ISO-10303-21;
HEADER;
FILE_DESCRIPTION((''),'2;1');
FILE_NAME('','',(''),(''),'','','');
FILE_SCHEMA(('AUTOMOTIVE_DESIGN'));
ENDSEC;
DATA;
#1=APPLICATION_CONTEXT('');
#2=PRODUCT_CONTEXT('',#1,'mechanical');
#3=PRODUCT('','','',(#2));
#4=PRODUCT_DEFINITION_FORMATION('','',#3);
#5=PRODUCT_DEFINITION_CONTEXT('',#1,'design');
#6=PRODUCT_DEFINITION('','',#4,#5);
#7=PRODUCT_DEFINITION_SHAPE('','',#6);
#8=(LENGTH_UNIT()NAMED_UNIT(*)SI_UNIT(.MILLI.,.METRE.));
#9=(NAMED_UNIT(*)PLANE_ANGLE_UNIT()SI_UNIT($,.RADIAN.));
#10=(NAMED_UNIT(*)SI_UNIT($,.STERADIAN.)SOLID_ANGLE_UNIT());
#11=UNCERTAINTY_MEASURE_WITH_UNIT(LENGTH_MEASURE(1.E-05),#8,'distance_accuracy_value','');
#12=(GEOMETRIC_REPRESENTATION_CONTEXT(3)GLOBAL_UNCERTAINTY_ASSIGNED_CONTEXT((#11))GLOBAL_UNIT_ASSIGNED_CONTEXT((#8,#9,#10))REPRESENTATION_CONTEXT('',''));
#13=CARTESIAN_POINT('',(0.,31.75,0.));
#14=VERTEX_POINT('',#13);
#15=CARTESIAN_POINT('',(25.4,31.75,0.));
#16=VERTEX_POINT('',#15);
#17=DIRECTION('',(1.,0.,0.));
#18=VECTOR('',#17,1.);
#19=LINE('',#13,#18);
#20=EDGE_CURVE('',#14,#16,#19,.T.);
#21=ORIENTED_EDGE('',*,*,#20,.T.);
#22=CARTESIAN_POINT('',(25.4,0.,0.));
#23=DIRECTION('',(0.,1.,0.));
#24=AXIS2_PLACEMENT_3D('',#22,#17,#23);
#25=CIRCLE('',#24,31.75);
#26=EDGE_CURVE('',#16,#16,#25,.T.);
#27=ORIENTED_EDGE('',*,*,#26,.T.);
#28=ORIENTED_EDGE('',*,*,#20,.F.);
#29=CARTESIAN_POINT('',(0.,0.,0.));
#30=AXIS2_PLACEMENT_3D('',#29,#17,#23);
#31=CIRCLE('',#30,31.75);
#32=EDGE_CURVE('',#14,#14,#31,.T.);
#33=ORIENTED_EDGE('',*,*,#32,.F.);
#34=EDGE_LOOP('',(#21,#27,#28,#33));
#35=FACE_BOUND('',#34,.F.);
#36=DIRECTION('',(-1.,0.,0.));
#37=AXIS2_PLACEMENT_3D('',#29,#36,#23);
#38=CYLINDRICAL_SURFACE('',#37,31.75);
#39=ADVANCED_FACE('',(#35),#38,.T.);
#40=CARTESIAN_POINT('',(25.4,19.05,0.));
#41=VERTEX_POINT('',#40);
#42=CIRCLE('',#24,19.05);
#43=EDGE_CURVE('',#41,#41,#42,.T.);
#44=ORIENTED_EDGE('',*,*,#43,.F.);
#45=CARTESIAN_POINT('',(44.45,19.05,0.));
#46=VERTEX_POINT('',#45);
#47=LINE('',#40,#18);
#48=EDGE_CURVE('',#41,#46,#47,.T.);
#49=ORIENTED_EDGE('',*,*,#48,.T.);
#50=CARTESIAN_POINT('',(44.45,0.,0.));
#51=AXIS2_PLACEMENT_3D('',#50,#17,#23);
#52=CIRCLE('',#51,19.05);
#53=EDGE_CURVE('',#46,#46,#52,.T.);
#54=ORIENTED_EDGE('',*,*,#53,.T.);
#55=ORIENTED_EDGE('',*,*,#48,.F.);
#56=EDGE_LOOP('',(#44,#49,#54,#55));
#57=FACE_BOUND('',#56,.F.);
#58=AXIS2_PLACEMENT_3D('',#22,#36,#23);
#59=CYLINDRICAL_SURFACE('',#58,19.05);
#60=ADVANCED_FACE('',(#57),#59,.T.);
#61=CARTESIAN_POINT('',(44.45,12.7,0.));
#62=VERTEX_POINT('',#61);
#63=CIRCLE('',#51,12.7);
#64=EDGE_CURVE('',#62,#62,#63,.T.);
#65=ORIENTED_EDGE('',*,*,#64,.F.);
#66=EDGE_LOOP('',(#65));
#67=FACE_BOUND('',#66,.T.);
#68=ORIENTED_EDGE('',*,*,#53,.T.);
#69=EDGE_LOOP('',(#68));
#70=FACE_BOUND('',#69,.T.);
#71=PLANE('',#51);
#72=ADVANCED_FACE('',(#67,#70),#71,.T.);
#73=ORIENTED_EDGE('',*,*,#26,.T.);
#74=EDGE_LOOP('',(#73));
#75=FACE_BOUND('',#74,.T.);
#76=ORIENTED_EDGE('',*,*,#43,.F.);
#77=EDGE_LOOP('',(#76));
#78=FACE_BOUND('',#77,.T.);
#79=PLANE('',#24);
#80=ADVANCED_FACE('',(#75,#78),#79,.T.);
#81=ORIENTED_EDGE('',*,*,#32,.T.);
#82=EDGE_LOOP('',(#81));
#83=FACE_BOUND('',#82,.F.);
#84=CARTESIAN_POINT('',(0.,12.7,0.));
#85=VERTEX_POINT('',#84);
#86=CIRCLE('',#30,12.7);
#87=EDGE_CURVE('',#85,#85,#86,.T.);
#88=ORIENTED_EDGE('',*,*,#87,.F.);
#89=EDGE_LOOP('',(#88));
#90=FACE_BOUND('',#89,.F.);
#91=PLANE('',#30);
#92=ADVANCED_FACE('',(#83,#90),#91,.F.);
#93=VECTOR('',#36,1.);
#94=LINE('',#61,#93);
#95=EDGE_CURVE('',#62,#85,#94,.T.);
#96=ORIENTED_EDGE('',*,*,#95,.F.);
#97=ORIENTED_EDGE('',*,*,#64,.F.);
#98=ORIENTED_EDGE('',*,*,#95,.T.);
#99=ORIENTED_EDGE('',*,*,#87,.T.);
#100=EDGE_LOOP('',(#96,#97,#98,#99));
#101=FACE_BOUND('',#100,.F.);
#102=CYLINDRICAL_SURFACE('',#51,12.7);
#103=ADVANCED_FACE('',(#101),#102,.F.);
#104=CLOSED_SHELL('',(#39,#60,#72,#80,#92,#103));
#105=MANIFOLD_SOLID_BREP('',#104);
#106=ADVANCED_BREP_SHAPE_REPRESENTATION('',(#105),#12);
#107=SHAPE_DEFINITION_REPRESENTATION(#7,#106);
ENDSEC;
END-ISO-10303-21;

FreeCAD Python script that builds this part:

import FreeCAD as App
import Part
import Sketcher
Q = App.Units.Quantity

doc = App.newDocument("Part")
body = doc.addObject("PartDesign::Body", "Body")

# Sketch on YZ plane
sketch1 = doc.addObject("Sketcher::SketchObject", "Sketch")
body.addObject(sketch1)
sketch1.AttachmentSupport = (doc.YZ_Plane, [""])
sketch1.MapMode = "FlatFace"
sketch1.addGeometry(Part.Circle(App.Vector(0, 0, 0), App.Vector(0, 0, 1), 31.75), False)
sketch1.addConstraint([
    Sketcher.Constraint("Coincident", 0, 3, -1, 1),
    Sketcher.Constraint("Diameter", 0, Q("2.5 in")),
])
pad1 = doc.addObject("PartDesign::Pad", "Pad")
body.addObject(pad1)
pad1.Profile = sketch1
pad1.Length = Q("1 in")

# Sketch on YZ plane
sketch2 = doc.addObject("Sketcher::SketchObject", "Sketch001")
body.addObject(sketch2)
sketch2.AttachmentSupport = (doc.YZ_Plane, [""])
sketch2.MapMode = "FlatFace"
sketch2.AttachmentOffset = App.Placement(App.Vector(0, 0, 1 * 25.4), App.Rotation())
sketch2.addGeometry(Part.Circle(App.Vector(0, 0, 0), App.Vector(0, 0, 1), 19.05), False)
sketch2.addConstraint([
    Sketcher.Constraint("Coincident", 0, 3, -1, 1),
    Sketcher.Constraint("Diameter", 0, Q("1.5 in")),
])
pad2 = doc.addObject("PartDesign::Pad", "Pad001")
body.addObject(pad2)
pad2.Profile = sketch2
pad2.Length = Q("0.75 in")

# Sketch on YZ plane
sketch3 = doc.addObject("Sketcher::SketchObject", "Sketch002")
body.addObject(sketch3)
sketch3.AttachmentSupport = (doc.YZ_Plane, [""])
sketch3.MapMode = "FlatFace"
sketch3.AttachmentOffset = App.Placement(App.Vector(0, 0, 1.75 * 25.4), App.Rotation())
sketch3.addGeometry(Part.Circle(App.Vector(0, 0, 0), App.Vector(0, 0, 1), 12.7), False)
sketch3.addConstraint([
    Sketcher.Constraint("Coincident", 0, 3, -1, 1),
    Sketcher.Constraint("Diameter", 0, Q("1 in")),
])
pocket1 = doc.addObject("PartDesign::Pocket", "Pocket")
body.addObject(pocket1)
pocket1.Profile = sketch3
pocket1.Length = Q("3.86 in")

doc.recompute()
